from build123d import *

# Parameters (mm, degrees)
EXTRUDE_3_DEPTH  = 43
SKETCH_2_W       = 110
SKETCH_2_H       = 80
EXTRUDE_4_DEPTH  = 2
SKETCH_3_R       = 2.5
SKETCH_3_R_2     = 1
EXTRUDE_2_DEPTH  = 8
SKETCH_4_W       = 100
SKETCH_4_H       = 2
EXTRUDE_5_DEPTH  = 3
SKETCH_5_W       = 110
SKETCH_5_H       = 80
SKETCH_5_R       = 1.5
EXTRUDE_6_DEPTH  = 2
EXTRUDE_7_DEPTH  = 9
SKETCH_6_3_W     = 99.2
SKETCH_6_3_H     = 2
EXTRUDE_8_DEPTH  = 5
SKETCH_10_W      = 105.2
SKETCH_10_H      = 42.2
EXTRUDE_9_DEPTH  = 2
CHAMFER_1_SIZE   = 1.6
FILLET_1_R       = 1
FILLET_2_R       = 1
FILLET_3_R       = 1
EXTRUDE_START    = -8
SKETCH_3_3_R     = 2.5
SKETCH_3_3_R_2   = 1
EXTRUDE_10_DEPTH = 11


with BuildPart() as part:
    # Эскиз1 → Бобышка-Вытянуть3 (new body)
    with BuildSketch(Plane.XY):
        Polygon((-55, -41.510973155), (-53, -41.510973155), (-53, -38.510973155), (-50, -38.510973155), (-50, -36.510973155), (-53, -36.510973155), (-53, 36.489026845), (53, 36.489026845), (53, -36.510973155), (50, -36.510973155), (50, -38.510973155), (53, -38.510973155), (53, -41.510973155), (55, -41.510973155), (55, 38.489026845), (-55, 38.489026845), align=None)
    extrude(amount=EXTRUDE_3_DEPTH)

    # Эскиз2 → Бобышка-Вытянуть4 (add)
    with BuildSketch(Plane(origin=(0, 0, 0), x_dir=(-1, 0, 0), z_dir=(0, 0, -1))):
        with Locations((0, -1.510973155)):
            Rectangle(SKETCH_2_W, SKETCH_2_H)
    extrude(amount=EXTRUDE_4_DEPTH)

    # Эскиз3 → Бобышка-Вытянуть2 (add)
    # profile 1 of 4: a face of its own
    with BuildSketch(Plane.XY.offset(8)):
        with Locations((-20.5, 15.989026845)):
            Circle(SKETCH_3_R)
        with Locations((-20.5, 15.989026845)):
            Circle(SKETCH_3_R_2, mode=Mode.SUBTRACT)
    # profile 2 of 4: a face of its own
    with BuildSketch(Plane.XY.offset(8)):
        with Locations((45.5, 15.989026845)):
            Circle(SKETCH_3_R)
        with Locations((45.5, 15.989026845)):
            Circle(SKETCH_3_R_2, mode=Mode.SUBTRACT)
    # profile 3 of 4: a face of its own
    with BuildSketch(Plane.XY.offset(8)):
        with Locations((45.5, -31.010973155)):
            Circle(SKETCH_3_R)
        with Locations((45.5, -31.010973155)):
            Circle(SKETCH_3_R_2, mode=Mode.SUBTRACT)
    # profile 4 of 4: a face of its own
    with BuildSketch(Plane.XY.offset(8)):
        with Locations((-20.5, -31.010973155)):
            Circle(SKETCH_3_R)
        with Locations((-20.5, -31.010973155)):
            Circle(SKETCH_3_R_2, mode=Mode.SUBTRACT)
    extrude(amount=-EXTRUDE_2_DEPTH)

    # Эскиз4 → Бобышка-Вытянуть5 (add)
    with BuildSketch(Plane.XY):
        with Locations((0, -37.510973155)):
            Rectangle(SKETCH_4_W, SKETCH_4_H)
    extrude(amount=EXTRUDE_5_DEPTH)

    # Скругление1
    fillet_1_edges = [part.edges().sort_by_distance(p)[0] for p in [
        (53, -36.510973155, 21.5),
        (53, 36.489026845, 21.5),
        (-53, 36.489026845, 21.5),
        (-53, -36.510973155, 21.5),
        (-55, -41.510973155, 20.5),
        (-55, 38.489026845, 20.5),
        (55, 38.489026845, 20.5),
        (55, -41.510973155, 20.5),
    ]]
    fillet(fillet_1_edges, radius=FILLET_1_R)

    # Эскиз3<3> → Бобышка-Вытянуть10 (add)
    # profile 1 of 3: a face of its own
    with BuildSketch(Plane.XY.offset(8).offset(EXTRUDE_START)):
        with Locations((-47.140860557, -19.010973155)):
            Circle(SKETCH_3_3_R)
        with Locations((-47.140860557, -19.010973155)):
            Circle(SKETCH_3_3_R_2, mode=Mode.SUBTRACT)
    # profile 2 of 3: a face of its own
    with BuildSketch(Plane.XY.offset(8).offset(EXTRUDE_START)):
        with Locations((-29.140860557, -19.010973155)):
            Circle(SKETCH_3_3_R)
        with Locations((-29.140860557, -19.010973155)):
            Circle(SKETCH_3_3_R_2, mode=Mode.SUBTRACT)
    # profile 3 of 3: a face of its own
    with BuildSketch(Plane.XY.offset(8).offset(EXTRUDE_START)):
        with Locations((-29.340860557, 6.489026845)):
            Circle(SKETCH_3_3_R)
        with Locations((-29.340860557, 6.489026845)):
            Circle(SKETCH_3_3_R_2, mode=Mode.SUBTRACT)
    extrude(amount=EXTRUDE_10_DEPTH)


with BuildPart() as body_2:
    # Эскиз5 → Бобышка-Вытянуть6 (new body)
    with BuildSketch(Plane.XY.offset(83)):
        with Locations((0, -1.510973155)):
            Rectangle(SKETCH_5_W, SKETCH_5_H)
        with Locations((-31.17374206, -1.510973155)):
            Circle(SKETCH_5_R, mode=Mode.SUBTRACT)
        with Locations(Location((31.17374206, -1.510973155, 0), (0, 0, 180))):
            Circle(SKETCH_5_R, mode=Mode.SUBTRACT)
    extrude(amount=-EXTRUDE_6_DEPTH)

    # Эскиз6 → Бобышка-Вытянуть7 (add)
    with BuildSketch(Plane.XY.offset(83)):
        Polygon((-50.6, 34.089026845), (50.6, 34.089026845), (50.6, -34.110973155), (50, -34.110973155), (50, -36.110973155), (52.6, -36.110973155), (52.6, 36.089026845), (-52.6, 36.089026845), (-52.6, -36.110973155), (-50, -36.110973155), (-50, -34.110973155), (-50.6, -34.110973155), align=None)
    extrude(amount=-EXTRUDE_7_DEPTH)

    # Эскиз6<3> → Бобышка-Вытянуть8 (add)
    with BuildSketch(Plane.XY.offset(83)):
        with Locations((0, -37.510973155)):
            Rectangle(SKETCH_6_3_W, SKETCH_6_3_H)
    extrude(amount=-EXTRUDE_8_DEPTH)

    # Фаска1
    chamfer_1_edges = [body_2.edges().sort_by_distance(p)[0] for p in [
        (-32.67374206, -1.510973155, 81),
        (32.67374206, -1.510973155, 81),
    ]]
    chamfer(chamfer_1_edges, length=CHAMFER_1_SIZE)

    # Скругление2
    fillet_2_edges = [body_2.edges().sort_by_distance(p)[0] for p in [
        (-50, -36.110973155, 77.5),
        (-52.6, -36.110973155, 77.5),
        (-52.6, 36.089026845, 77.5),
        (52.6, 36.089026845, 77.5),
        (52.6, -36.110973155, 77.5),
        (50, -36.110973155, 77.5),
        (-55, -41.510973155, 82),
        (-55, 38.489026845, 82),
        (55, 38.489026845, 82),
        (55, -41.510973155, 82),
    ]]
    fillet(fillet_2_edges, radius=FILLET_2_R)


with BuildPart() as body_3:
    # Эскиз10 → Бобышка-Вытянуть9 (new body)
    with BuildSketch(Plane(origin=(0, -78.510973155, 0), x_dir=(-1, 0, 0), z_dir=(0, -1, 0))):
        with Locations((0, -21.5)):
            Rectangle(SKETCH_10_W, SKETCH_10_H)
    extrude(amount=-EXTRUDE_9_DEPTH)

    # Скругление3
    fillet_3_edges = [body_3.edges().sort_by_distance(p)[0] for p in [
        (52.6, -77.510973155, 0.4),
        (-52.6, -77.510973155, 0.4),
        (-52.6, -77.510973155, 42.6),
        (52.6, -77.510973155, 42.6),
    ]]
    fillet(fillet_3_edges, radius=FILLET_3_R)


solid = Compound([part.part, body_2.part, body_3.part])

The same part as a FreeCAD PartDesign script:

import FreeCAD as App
import Part
import Sketcher
from FreeCAD import Vector
Q = App.Units.Quantity


def edges_at(feature, points):
    """Names of the edges that pass closest to the given points."""
    edges = feature.Shape.Edges
    near = lambda p: min(range(len(edges)), key=lambda i: edges[i].distToShape(Part.Vertex(*p))[0])
    return sorted({f"Edge{near(p) + 1}" for p in points})


def add_polygon(sketch, points):
    """Adds a closed chain of lines whose ends are joined by coincident constraints."""
    first, n = sketch.GeometryCount, len(points)
    for a, b in zip(points, points[1:] + points[:1]):
        sketch.addGeometry(Part.LineSegment(App.Vector(*a, 0), App.Vector(*b, 0)), False)
    for i in range(n):
        sketch.addConstraint(Sketcher.Constraint("Coincident", first + i, 2, first + (i + 1) % n, 1))

doc = App.newDocument("Part")
body = doc.addObject("PartDesign::Body", "Body")

# Sketch on XY plane
sketch1 = body.newObject("Sketcher::SketchObject", "Sketch")
sketch1.AttachmentSupport = (doc.getObject("XY_Plane"), [""])
sketch1.MapMode = "FlatFace"
add_polygon(sketch1, [(-55, -41.5), (-53, -41.5), (-53, -38.5), (-50, -38.5), (-50, -36.5), (-53, -36.5), (-53, 36.5), (53, 36.5), (53, -36.5), (50, -36.5), (50, -38.5), (53, -38.5), (53, -41.5), (55, -41.5), (55, 38.5), (-55, 38.5)])  # lines 0-15
sketch1.addConstraint([
    Sketcher.Constraint("Horizontal", 0),
    Sketcher.Constraint("Vertical", 1),
    Sketcher.Constraint("Horizontal", 2),
    Sketcher.Constraint("Vertical", 3),
    Sketcher.Constraint("Horizontal", 4),
    Sketcher.Constraint("Vertical", 5),
    Sketcher.Constraint("Horizontal", 6),
    Sketcher.Constraint("Vertical", 7),
    Sketcher.Constraint("Horizontal", 8),
    Sketcher.Constraint("Vertical", 9),
    Sketcher.Constraint("Horizontal", 10),
    Sketcher.Constraint("Vertical", 11),
    Sketcher.Constraint("Horizontal", 12),
    Sketcher.Constraint("Vertical", 13),
    Sketcher.Constraint("Horizontal", 14),
    Sketcher.Constraint("Vertical", 15),
    Sketcher.Constraint("Symmetric", 4, 2, 7, 2, -2),
    Sketcher.Constraint("Symmetric", 2, 2, 9, 2, -2),
    Sketcher.Constraint("Symmetric", 0, 2, 11, 2, -2),
    Sketcher.Constraint("Vertical", 1, 2, 4, 2),
    Sketcher.Constraint("Equal", 0, 12),
    Sketcher.Constraint("Equal", 10, 1),
    Sketcher.Constraint("Equal", 12, 3),
    Sketcher.Constraint("DistanceX", 0, 1, 0, 2, Q("2 mm")),
    Sketcher.Constraint("DistanceX", 2, 1, 2, 2, Q("3 mm")),
    Sketcher.Constraint("DistanceX", 6, 1, 6, 2, Q("106 mm")),
    Sketcher.Constraint("DistanceY", 5, 1, 5, 2, Q("73 mm")),
    Sketcher.Constraint("DistanceY", 13, 1, 13, 2, Q("80 mm")),
    Sketcher.Constraint("DistanceY", 0, 2, -1, 1, Q("41.510973 mm")),
])
pad1 = body.newObject("PartDesign::Pad", "Pad")
pad1.Profile = sketch1
pad1.Length = 43

# Sketch on XY plane
sketch2 = body.newObject("Sketcher::SketchObject", "Sketch001")
sketch2.AttachmentSupport = (doc.getObject("XY_Plane"), [""])
sketch2.MapMode = "FlatFace"
add_polygon(sketch2, [(55, 38), (55, -42), (-55, -42), (-55, 38)])  # lines 0-3
sketch2.addConstraint([
    Sketcher.Constraint("Vertical", 0),
    Sketcher.Constraint("Horizontal", 1),
    Sketcher.Constraint("Vertical", 2),
    Sketcher.Constraint("Horizontal", 3),
    Sketcher.Constraint("DistanceX", 1, 2, 1, 1, Q("110 mm")),
    Sketcher.Constraint("DistanceY", 0, 2, 0, 1, Q("80 mm")),
    Sketcher.Constraint("DistanceX", -1, 1, 0, 2, Q("55 mm")),
    Sketcher.Constraint("DistanceY", 0, 2, -1, 1, Q("41.510973 mm")),
])
pad2 = body.newObject("PartDesign::Pad", "Pad001")
pad2.Profile = sketch2
pad2.Length = 2
pad2.Reversed = True

# Sketch on XY plane
sketch3 = body.newObject("Sketcher::SketchObject", "Sketch002")
sketch3.AttachmentSupport = (doc.getObject("XY_Plane"), [""])
sketch3.MapMode = "FlatFace"
sketch3.AttachmentOffset = App.Placement(Vector(0, 0, 8), App.Rotation())
sketch3.addGeometry([
    Part.Circle(Vector(-20.5, 16, 0), Vector(0, 0, 1), 2.5),  # 0
    Part.Circle(Vector(-20.5, 16, 0), Vector(0, 0, 1), 1),  # 1
    Part.Circle(Vector(45.5, 16, 0), Vector(0, 0, 1), 2.5),  # 2
    Part.Circle(Vector(45.5, 16, 0), Vector(0, 0, 1), 1),  # 3
    Part.Circle(Vector(45.5, -31, 0), Vector(0, 0, 1), 2.5),  # 4
    Part.Circle(Vector(45.5, -31, 0), Vector(0, 0, 1), 1),  # 5
    Part.Circle(Vector(-20.5, -31, 0), Vector(0, 0, 1), 2.5),  # 6
    Part.Circle(Vector(-20.5, -31, 0), Vector(0, 0, 1), 1),  # 7
], False)
sketch3.addConstraint([
    Sketcher.Constraint("Coincident", 1, 3, 0, 3),
    Sketcher.Constraint("Coincident", 3, 3, 2, 3),
    Sketcher.Constraint("Coincident", 5, 3, 4, 3),
    Sketcher.Constraint("Coincident", 7, 3, 6, 3),
    Sketcher.Constraint("Equal", 0, 2),
    Sketcher.Constraint("Equal", 1, 3),
    Sketcher.Constraint("Equal", 2, 4),
    Sketcher.Constraint("Equal", 3, 5),
    Sketcher.Constraint("Equal", 4, 6),
    Sketcher.Constraint("Equal", 5, 7),
    Sketcher.Constraint("Horizontal", 1, 3, 2, 3),
    Sketcher.Constraint("Horizontal", 5, 3, 6, 3),
    Sketcher.Constraint("Vertical", 3, 3, 4, 3),
    Sketcher.Constraint("Vertical", 1, 3, 6, 3),
    Sketcher.Constraint("Diameter", 0, Q("5 mm")),
    Sketcher.Constraint("Diameter", 1, Q("2 mm")),
    Sketcher.Constraint("DistanceX", 0, 3, 2, 3, Q("66 mm")),
    Sketcher.Constraint("DistanceY", 4, 3, 2, 3, Q("47 mm")),
    Sketcher.Constraint("DistanceX", 0, 3, -1, 1, Q("20.5 mm")),
    Sketcher.Constraint("DistanceY", -1, 1, 0, 3, Q("15.989027 mm")),
])
pad3 = body.newObject("PartDesign::Pad", "Pad002")
pad3.Profile = sketch3
pad3.Length = 8
pad3.Reversed = True

# Sketch on XY plane
sketch4 = body.newObject("Sketcher::SketchObject", "Sketch003")
sketch4.AttachmentSupport = (doc.getObject("XY_Plane"), [""])
sketch4.MapMode = "FlatFace"
add_polygon(sketch4, [(-50, -36.5), (-50, -38.5), (50, -38.5), (50, -36.5)])  # lines 0-3
sketch4.addConstraint([
    Sketcher.Constraint("Vertical", 0),
    Sketcher.Constraint("Horizontal", 1),
    Sketcher.Constraint("Vertical", 2),
    Sketcher.Constraint("Horizontal", 3),
    Sketcher.Constraint("DistanceX", 1, 1, 1, 2, Q("100 mm")),
    Sketcher.Constraint("DistanceY", 0, 2, 0, 1, Q("2 mm")),
    Sketcher.Constraint("DistanceX", 0, 2, -1, 1, Q("50 mm")),
    Sketcher.Constraint("DistanceY", 0, 2, -1, 1, Q("38.510973 mm")),
])
pad4 = body.newObject("PartDesign::Pad", "Pad003")
pad4.Profile = sketch4
pad4.Length = 3
doc.recompute()

fillet = body.newObject("PartDesign::Fillet", "Fillet")
fillet.Base = (pad4, edges_at(pad4, [
    (53, -36.511, 21.5),
    (53, 36.489, 21.5),
    (-53, 36.489, 21.5),
    (-53, -36.511, 21.5),
    (-55, -41.511, 20.5),
    (-55, 38.489, 20.5),
    (55, 38.489, 20.5),
    (55, -41.511, 20.5),
]))
fillet.Radius = 1

# Sketch on XY plane
sketch5 = body.newObject("Sketcher::SketchObject", "Sketch004")
sketch5.AttachmentSupport = (doc.getObject("XY_Plane"), [""])
sketch5.MapMode = "FlatFace"
sketch5.addGeometry([
    Part.Circle(Vector(-47.1, -19, 0), Vector(0, 0, 1), 2.5),  # 0
    Part.Circle(Vector(-47.1, -19, 0), Vector(0, 0, 1), 1),  # 1
    Part.Circle(Vector(-29.1, -19, 0), Vector(0, 0, 1), 2.5),  # 2
    Part.Circle(Vector(-29.1, -19, 0), Vector(0, 0, 1), 1),  # 3
    Part.Circle(Vector(-29.3, 6.5, 0), Vector(0, 0, 1), 2.5),  # 4
    Part.Circle(Vector(-29.3, 6.5, 0), Vector(0, 0, 1), 1),  # 5
], False)
sketch5.addConstraint([
    Sketcher.Constraint("Coincident", 1, 3, 0, 3),
    Sketcher.Constraint("Coincident", 3, 3, 2, 3),
    Sketcher.Constraint("Coincident", 5, 3, 4, 3),
    Sketcher.Constraint("Equal", 0, 2),
    Sketcher.Constraint("Equal", 1, 3),
    Sketcher.Constraint("Equal", 2, 4),
    Sketcher.Constraint("Equal", 3, 5),
    Sketcher.Constraint("Horizontal", 1, 3, 2, 3),
    Sketcher.Constraint("Diameter", 0, Q("5 mm")),
    Sketcher.Constraint("Diameter", 1, Q("2 mm")),
    Sketcher.Constraint("DistanceX", 0, 3, 2, 3, Q("18 mm")),
    Sketcher.Constraint("DistanceX", 4, 3, 2, 3, Q("0.2 mm")),
    Sketcher.Constraint("DistanceY", 2, 3, 4, 3, Q("25.5 mm")),
    Sketcher.Constraint("DistanceX", 0, 3, -1, 1, Q("47.140861 mm")),
    Sketcher.Constraint("DistanceY", 0, 3, -1, 1, Q("19.010973 mm")),
])
pad5 = body.newObject("PartDesign::Pad", "Pad004")
pad5.Profile = sketch5
pad5.Length = 11
body2 = doc.addObject("PartDesign::Body", "Body001")

# Sketch on XY plane
sketch6 = body2.newObject("Sketcher::SketchObject", "Sketch005")
sketch6.AttachmentSupport = (doc.getObject("XY_Plane001"), [""])
sketch6.MapMode = "FlatFace"
sketch6.AttachmentOffset = App.Placement(Vector(0, 0, 83), App.Rotation())
add_polygon(sketch6, [(-55, 38.5), (-55, -41.5), (55, -41.5), (55, 38.5)])  # lines 0-3
sketch6.addGeometry(Part.Circle(Vector(-31.2, -1.5, 0), Vector(0, 0, 1), 1.5), False)  # 4
sketch6.addGeometry(Part.Circle(Vector(31.2, -1.5, 0), Vector(0, 0, 1), 1.5), False)  # 5
sketch6.addConstraint([
    Sketcher.Constraint("Vertical", 0),
    Sketcher.Constraint("Horizontal", 1),
    Sketcher.Constraint("Vertical", 2),
    Sketcher.Constraint("Horizontal", 3),
    Sketcher.Constraint("Equal", 4, 5),
    Sketcher.Constraint("Symmetric", 4, 3, 5, 3, -2),
    Sketcher.Constraint("Diameter", 4, Q("3 mm")),
    Sketcher.Constraint("DistanceX", 1, 1, 1, 2, Q("110 mm")),
    Sketcher.Constraint("DistanceY", 0, 2, 0, 1, Q("80 mm")),
    Sketcher.Constraint("DistanceX", 0, 2, -1, 1, Q("55 mm")),
    Sketcher.Constraint("DistanceY", 0, 2, 4, 3, Q("40 mm")),
    Sketcher.Constraint("DistanceX", 4, 3, -1, 1, Q("31.173742 mm")),
    Sketcher.Constraint("DistanceY", 4, 3, -1, 1, Q("1.510973 mm")),
])
pad6 = body2.newObject("PartDesign::Pad", "Pad005")
pad6.Profile = sketch6
pad6.Length = 2
pad6.Reversed = True

# Sketch on XY plane
sketch7 = body2.newObject("Sketcher::SketchObject", "Sketch006")
sketch7.AttachmentSupport = (doc.getObject("XY_Plane001"), [""])
sketch7.MapMode = "FlatFace"
sketch7.AttachmentOffset = App.Placement(Vector(0, 0, 83), App.Rotation())
add_polygon(sketch7, [(-50.6, 34.1), (50.6, 34.1), (50.6, -34.1), (50, -34.1), (50, -36.1), (52.6, -36.1), (52.6, 36.1), (-52.6, 36.1), (-52.6, -36.1), (-50, -36.1), (-50, -34.1), (-50.6, -34.1)])  # lines 0-11
sketch7.addConstraint([
    Sketcher.Constraint("Horizontal", 0),
    Sketcher.Constraint("Vertical", 1),
    Sketcher.Constraint("Horizontal", 2),
    Sketcher.Constraint("Vertical", 3),
    Sketcher.Constraint("Horizontal", 4),
    Sketcher.Constraint("Vertical", 5),
    Sketcher.Constraint("Horizontal", 6),
    Sketcher.Constraint("Vertical", 7),
    Sketcher.Constraint("Horizontal", 8),
    Sketcher.Constraint("Vertical", 9),
    Sketcher.Constraint("Horizontal", 10),
    Sketcher.Constraint("Vertical", 11),
    Sketcher.Constraint("Symmetric", 4, 2, 7, 2, -2),
    Sketcher.Constraint("Symmetric", 2, 2, 9, 2, -2),
    Sketcher.Constraint("Equal", 2, 10),
    Sketcher.Constraint("DistanceY", 3, 2, 3, 1, Q("2 mm")),
    Sketcher.Constraint("DistanceX", 0, 1, 0, 2, Q("101.2 mm")),
    Sketcher.Constraint("DistanceX", 2, 2, 2, 1, Q("0.6 mm")),
    Sketcher.Constraint("DistanceX", 4, 1, 4, 2, Q("2.6 mm")),
    Sketcher.Constraint("DistanceY", 1, 2, 1, 1, Q("68.2 mm")),
    Sketcher.Constraint("DistanceY", 5, 1, 5, 2, Q("72.2 mm")),
    Sketcher.Constraint("DistanceY", -1, 1, 0, 2, Q("34.089027 mm")),
])
pad7 = body2.newObject("PartDesign::Pad", "Pad006")
pad7.Profile = sketch7
pad7.Length = 9
pad7.Reversed = True

# Sketch on XY plane
sketch8 = body2.newObject("Sketcher::SketchObject", "Sketch007")
sketch8.AttachmentSupport = (doc.getObject("XY_Plane001"), [""])
sketch8.MapMode = "FlatFace"
sketch8.AttachmentOffset = App.Placement(Vector(0, 0, 83), App.Rotation())
add_polygon(sketch8, [(-49.6, -36.5), (-49.6, -38.5), (49.6, -38.5), (49.6, -36.5)])  # lines 0-3
sketch8.addConstraint([
    Sketcher.Constraint("Vertical", 0),
    Sketcher.Constraint("Horizontal", 1),
    Sketcher.Constraint("Vertical", 2),
    Sketcher.Constraint("Horizontal", 3),
    Sketcher.Constraint("DistanceY", 0, 2, 0, 1, Q("2 mm")),
    Sketcher.Constraint("DistanceX", 1, 1, 1, 2, Q("99.2 mm")),
    Sketcher.Constraint("DistanceX", 0, 2, -1, 1, Q("49.6 mm")),
    Sketcher.Constraint("DistanceY", 0, 2, -1, 1, Q("38.510973 mm")),
])
pad8 = body2.newObject("PartDesign::Pad", "Pad007")
pad8.Profile = sketch8
pad8.Length = 5
pad8.Reversed = True
doc.recompute()

chamfer = body2.newObject("PartDesign::Chamfer", "Chamfer")
chamfer.Base = (pad8, edges_at(pad8, [(-32.674, -1.511, 81), (32.674, -1.511, 81)]))
chamfer.Size = 1.6
doc.recompute()

fillet2 = body2.newObject("PartDesign::Fillet", "Fillet001")
fillet2.Base = (chamfer, edges_at(chamfer, [
    (-50, -36.111, 77.5),
    (-52.6, -36.111, 77.5),
    (-52.6, 36.089, 77.5),
    (52.6, 36.089, 77.5),
    (52.6, -36.111, 77.5),
    (50, -36.111, 77.5),
    (-55, -41.511, 82),
    (-55, 38.489, 82),
    (55, 38.489, 82),
    (55, -41.511, 82),
]))
fillet2.Radius = 1
body3 = doc.addObject("PartDesign::Body", "Body002")

# Sketch on XZ plane
sketch9 = body3.newObject("Sketcher::SketchObject", "Sketch008")
sketch9.AttachmentSupport = (doc.getObject("XZ_Plane002"), [""])
sketch9.MapMode = "FlatFace"
sketch9.AttachmentOffset = App.Placement(Vector(0, 0, 78.510973), App.Rotation())
add_polygon(sketch9, [(53, 0), (53, 43), (-53, 43), (-53, 0)])  # lines 0-3
sketch9.addConstraint([
    Sketcher.Constraint("Vertical", 0),
    Sketcher.Constraint("Horizontal", 1),
    Sketcher.Constraint("Vertical", 2),
    Sketcher.Constraint("Horizontal", 3),
    Sketcher.Constraint("DistanceX", 1, 2, 1, 1, Q("105.2 mm")),
    Sketcher.Constraint("DistanceY", 0, 1, 0, 2, Q("42.2 mm")),
    Sketcher.Constraint("DistanceX", -1, 1, 0, 2, Q("52.6 mm")),
    Sketcher.Constraint("DistanceY", -1, 1, 0, 2, Q("42.6 mm")),
])
pad9 = body3.newObject("PartDesign::Pad", "Pad008")
pad9.Profile = sketch9
pad9.Length = 2
pad9.Reversed = True
doc.recompute()

fillet3 = body3.newObject("PartDesign::Fillet", "Fillet002")
fillet3.Base = (pad9, edges_at(pad9, [
    (52.6, -77.511, 0.4),
    (-52.6, -77.511, 0.4),
    (-52.6, -77.511, 42.6),
    (52.6, -77.511, 42.6),
]))
fillet3.Radius = 1

doc.recompute()
